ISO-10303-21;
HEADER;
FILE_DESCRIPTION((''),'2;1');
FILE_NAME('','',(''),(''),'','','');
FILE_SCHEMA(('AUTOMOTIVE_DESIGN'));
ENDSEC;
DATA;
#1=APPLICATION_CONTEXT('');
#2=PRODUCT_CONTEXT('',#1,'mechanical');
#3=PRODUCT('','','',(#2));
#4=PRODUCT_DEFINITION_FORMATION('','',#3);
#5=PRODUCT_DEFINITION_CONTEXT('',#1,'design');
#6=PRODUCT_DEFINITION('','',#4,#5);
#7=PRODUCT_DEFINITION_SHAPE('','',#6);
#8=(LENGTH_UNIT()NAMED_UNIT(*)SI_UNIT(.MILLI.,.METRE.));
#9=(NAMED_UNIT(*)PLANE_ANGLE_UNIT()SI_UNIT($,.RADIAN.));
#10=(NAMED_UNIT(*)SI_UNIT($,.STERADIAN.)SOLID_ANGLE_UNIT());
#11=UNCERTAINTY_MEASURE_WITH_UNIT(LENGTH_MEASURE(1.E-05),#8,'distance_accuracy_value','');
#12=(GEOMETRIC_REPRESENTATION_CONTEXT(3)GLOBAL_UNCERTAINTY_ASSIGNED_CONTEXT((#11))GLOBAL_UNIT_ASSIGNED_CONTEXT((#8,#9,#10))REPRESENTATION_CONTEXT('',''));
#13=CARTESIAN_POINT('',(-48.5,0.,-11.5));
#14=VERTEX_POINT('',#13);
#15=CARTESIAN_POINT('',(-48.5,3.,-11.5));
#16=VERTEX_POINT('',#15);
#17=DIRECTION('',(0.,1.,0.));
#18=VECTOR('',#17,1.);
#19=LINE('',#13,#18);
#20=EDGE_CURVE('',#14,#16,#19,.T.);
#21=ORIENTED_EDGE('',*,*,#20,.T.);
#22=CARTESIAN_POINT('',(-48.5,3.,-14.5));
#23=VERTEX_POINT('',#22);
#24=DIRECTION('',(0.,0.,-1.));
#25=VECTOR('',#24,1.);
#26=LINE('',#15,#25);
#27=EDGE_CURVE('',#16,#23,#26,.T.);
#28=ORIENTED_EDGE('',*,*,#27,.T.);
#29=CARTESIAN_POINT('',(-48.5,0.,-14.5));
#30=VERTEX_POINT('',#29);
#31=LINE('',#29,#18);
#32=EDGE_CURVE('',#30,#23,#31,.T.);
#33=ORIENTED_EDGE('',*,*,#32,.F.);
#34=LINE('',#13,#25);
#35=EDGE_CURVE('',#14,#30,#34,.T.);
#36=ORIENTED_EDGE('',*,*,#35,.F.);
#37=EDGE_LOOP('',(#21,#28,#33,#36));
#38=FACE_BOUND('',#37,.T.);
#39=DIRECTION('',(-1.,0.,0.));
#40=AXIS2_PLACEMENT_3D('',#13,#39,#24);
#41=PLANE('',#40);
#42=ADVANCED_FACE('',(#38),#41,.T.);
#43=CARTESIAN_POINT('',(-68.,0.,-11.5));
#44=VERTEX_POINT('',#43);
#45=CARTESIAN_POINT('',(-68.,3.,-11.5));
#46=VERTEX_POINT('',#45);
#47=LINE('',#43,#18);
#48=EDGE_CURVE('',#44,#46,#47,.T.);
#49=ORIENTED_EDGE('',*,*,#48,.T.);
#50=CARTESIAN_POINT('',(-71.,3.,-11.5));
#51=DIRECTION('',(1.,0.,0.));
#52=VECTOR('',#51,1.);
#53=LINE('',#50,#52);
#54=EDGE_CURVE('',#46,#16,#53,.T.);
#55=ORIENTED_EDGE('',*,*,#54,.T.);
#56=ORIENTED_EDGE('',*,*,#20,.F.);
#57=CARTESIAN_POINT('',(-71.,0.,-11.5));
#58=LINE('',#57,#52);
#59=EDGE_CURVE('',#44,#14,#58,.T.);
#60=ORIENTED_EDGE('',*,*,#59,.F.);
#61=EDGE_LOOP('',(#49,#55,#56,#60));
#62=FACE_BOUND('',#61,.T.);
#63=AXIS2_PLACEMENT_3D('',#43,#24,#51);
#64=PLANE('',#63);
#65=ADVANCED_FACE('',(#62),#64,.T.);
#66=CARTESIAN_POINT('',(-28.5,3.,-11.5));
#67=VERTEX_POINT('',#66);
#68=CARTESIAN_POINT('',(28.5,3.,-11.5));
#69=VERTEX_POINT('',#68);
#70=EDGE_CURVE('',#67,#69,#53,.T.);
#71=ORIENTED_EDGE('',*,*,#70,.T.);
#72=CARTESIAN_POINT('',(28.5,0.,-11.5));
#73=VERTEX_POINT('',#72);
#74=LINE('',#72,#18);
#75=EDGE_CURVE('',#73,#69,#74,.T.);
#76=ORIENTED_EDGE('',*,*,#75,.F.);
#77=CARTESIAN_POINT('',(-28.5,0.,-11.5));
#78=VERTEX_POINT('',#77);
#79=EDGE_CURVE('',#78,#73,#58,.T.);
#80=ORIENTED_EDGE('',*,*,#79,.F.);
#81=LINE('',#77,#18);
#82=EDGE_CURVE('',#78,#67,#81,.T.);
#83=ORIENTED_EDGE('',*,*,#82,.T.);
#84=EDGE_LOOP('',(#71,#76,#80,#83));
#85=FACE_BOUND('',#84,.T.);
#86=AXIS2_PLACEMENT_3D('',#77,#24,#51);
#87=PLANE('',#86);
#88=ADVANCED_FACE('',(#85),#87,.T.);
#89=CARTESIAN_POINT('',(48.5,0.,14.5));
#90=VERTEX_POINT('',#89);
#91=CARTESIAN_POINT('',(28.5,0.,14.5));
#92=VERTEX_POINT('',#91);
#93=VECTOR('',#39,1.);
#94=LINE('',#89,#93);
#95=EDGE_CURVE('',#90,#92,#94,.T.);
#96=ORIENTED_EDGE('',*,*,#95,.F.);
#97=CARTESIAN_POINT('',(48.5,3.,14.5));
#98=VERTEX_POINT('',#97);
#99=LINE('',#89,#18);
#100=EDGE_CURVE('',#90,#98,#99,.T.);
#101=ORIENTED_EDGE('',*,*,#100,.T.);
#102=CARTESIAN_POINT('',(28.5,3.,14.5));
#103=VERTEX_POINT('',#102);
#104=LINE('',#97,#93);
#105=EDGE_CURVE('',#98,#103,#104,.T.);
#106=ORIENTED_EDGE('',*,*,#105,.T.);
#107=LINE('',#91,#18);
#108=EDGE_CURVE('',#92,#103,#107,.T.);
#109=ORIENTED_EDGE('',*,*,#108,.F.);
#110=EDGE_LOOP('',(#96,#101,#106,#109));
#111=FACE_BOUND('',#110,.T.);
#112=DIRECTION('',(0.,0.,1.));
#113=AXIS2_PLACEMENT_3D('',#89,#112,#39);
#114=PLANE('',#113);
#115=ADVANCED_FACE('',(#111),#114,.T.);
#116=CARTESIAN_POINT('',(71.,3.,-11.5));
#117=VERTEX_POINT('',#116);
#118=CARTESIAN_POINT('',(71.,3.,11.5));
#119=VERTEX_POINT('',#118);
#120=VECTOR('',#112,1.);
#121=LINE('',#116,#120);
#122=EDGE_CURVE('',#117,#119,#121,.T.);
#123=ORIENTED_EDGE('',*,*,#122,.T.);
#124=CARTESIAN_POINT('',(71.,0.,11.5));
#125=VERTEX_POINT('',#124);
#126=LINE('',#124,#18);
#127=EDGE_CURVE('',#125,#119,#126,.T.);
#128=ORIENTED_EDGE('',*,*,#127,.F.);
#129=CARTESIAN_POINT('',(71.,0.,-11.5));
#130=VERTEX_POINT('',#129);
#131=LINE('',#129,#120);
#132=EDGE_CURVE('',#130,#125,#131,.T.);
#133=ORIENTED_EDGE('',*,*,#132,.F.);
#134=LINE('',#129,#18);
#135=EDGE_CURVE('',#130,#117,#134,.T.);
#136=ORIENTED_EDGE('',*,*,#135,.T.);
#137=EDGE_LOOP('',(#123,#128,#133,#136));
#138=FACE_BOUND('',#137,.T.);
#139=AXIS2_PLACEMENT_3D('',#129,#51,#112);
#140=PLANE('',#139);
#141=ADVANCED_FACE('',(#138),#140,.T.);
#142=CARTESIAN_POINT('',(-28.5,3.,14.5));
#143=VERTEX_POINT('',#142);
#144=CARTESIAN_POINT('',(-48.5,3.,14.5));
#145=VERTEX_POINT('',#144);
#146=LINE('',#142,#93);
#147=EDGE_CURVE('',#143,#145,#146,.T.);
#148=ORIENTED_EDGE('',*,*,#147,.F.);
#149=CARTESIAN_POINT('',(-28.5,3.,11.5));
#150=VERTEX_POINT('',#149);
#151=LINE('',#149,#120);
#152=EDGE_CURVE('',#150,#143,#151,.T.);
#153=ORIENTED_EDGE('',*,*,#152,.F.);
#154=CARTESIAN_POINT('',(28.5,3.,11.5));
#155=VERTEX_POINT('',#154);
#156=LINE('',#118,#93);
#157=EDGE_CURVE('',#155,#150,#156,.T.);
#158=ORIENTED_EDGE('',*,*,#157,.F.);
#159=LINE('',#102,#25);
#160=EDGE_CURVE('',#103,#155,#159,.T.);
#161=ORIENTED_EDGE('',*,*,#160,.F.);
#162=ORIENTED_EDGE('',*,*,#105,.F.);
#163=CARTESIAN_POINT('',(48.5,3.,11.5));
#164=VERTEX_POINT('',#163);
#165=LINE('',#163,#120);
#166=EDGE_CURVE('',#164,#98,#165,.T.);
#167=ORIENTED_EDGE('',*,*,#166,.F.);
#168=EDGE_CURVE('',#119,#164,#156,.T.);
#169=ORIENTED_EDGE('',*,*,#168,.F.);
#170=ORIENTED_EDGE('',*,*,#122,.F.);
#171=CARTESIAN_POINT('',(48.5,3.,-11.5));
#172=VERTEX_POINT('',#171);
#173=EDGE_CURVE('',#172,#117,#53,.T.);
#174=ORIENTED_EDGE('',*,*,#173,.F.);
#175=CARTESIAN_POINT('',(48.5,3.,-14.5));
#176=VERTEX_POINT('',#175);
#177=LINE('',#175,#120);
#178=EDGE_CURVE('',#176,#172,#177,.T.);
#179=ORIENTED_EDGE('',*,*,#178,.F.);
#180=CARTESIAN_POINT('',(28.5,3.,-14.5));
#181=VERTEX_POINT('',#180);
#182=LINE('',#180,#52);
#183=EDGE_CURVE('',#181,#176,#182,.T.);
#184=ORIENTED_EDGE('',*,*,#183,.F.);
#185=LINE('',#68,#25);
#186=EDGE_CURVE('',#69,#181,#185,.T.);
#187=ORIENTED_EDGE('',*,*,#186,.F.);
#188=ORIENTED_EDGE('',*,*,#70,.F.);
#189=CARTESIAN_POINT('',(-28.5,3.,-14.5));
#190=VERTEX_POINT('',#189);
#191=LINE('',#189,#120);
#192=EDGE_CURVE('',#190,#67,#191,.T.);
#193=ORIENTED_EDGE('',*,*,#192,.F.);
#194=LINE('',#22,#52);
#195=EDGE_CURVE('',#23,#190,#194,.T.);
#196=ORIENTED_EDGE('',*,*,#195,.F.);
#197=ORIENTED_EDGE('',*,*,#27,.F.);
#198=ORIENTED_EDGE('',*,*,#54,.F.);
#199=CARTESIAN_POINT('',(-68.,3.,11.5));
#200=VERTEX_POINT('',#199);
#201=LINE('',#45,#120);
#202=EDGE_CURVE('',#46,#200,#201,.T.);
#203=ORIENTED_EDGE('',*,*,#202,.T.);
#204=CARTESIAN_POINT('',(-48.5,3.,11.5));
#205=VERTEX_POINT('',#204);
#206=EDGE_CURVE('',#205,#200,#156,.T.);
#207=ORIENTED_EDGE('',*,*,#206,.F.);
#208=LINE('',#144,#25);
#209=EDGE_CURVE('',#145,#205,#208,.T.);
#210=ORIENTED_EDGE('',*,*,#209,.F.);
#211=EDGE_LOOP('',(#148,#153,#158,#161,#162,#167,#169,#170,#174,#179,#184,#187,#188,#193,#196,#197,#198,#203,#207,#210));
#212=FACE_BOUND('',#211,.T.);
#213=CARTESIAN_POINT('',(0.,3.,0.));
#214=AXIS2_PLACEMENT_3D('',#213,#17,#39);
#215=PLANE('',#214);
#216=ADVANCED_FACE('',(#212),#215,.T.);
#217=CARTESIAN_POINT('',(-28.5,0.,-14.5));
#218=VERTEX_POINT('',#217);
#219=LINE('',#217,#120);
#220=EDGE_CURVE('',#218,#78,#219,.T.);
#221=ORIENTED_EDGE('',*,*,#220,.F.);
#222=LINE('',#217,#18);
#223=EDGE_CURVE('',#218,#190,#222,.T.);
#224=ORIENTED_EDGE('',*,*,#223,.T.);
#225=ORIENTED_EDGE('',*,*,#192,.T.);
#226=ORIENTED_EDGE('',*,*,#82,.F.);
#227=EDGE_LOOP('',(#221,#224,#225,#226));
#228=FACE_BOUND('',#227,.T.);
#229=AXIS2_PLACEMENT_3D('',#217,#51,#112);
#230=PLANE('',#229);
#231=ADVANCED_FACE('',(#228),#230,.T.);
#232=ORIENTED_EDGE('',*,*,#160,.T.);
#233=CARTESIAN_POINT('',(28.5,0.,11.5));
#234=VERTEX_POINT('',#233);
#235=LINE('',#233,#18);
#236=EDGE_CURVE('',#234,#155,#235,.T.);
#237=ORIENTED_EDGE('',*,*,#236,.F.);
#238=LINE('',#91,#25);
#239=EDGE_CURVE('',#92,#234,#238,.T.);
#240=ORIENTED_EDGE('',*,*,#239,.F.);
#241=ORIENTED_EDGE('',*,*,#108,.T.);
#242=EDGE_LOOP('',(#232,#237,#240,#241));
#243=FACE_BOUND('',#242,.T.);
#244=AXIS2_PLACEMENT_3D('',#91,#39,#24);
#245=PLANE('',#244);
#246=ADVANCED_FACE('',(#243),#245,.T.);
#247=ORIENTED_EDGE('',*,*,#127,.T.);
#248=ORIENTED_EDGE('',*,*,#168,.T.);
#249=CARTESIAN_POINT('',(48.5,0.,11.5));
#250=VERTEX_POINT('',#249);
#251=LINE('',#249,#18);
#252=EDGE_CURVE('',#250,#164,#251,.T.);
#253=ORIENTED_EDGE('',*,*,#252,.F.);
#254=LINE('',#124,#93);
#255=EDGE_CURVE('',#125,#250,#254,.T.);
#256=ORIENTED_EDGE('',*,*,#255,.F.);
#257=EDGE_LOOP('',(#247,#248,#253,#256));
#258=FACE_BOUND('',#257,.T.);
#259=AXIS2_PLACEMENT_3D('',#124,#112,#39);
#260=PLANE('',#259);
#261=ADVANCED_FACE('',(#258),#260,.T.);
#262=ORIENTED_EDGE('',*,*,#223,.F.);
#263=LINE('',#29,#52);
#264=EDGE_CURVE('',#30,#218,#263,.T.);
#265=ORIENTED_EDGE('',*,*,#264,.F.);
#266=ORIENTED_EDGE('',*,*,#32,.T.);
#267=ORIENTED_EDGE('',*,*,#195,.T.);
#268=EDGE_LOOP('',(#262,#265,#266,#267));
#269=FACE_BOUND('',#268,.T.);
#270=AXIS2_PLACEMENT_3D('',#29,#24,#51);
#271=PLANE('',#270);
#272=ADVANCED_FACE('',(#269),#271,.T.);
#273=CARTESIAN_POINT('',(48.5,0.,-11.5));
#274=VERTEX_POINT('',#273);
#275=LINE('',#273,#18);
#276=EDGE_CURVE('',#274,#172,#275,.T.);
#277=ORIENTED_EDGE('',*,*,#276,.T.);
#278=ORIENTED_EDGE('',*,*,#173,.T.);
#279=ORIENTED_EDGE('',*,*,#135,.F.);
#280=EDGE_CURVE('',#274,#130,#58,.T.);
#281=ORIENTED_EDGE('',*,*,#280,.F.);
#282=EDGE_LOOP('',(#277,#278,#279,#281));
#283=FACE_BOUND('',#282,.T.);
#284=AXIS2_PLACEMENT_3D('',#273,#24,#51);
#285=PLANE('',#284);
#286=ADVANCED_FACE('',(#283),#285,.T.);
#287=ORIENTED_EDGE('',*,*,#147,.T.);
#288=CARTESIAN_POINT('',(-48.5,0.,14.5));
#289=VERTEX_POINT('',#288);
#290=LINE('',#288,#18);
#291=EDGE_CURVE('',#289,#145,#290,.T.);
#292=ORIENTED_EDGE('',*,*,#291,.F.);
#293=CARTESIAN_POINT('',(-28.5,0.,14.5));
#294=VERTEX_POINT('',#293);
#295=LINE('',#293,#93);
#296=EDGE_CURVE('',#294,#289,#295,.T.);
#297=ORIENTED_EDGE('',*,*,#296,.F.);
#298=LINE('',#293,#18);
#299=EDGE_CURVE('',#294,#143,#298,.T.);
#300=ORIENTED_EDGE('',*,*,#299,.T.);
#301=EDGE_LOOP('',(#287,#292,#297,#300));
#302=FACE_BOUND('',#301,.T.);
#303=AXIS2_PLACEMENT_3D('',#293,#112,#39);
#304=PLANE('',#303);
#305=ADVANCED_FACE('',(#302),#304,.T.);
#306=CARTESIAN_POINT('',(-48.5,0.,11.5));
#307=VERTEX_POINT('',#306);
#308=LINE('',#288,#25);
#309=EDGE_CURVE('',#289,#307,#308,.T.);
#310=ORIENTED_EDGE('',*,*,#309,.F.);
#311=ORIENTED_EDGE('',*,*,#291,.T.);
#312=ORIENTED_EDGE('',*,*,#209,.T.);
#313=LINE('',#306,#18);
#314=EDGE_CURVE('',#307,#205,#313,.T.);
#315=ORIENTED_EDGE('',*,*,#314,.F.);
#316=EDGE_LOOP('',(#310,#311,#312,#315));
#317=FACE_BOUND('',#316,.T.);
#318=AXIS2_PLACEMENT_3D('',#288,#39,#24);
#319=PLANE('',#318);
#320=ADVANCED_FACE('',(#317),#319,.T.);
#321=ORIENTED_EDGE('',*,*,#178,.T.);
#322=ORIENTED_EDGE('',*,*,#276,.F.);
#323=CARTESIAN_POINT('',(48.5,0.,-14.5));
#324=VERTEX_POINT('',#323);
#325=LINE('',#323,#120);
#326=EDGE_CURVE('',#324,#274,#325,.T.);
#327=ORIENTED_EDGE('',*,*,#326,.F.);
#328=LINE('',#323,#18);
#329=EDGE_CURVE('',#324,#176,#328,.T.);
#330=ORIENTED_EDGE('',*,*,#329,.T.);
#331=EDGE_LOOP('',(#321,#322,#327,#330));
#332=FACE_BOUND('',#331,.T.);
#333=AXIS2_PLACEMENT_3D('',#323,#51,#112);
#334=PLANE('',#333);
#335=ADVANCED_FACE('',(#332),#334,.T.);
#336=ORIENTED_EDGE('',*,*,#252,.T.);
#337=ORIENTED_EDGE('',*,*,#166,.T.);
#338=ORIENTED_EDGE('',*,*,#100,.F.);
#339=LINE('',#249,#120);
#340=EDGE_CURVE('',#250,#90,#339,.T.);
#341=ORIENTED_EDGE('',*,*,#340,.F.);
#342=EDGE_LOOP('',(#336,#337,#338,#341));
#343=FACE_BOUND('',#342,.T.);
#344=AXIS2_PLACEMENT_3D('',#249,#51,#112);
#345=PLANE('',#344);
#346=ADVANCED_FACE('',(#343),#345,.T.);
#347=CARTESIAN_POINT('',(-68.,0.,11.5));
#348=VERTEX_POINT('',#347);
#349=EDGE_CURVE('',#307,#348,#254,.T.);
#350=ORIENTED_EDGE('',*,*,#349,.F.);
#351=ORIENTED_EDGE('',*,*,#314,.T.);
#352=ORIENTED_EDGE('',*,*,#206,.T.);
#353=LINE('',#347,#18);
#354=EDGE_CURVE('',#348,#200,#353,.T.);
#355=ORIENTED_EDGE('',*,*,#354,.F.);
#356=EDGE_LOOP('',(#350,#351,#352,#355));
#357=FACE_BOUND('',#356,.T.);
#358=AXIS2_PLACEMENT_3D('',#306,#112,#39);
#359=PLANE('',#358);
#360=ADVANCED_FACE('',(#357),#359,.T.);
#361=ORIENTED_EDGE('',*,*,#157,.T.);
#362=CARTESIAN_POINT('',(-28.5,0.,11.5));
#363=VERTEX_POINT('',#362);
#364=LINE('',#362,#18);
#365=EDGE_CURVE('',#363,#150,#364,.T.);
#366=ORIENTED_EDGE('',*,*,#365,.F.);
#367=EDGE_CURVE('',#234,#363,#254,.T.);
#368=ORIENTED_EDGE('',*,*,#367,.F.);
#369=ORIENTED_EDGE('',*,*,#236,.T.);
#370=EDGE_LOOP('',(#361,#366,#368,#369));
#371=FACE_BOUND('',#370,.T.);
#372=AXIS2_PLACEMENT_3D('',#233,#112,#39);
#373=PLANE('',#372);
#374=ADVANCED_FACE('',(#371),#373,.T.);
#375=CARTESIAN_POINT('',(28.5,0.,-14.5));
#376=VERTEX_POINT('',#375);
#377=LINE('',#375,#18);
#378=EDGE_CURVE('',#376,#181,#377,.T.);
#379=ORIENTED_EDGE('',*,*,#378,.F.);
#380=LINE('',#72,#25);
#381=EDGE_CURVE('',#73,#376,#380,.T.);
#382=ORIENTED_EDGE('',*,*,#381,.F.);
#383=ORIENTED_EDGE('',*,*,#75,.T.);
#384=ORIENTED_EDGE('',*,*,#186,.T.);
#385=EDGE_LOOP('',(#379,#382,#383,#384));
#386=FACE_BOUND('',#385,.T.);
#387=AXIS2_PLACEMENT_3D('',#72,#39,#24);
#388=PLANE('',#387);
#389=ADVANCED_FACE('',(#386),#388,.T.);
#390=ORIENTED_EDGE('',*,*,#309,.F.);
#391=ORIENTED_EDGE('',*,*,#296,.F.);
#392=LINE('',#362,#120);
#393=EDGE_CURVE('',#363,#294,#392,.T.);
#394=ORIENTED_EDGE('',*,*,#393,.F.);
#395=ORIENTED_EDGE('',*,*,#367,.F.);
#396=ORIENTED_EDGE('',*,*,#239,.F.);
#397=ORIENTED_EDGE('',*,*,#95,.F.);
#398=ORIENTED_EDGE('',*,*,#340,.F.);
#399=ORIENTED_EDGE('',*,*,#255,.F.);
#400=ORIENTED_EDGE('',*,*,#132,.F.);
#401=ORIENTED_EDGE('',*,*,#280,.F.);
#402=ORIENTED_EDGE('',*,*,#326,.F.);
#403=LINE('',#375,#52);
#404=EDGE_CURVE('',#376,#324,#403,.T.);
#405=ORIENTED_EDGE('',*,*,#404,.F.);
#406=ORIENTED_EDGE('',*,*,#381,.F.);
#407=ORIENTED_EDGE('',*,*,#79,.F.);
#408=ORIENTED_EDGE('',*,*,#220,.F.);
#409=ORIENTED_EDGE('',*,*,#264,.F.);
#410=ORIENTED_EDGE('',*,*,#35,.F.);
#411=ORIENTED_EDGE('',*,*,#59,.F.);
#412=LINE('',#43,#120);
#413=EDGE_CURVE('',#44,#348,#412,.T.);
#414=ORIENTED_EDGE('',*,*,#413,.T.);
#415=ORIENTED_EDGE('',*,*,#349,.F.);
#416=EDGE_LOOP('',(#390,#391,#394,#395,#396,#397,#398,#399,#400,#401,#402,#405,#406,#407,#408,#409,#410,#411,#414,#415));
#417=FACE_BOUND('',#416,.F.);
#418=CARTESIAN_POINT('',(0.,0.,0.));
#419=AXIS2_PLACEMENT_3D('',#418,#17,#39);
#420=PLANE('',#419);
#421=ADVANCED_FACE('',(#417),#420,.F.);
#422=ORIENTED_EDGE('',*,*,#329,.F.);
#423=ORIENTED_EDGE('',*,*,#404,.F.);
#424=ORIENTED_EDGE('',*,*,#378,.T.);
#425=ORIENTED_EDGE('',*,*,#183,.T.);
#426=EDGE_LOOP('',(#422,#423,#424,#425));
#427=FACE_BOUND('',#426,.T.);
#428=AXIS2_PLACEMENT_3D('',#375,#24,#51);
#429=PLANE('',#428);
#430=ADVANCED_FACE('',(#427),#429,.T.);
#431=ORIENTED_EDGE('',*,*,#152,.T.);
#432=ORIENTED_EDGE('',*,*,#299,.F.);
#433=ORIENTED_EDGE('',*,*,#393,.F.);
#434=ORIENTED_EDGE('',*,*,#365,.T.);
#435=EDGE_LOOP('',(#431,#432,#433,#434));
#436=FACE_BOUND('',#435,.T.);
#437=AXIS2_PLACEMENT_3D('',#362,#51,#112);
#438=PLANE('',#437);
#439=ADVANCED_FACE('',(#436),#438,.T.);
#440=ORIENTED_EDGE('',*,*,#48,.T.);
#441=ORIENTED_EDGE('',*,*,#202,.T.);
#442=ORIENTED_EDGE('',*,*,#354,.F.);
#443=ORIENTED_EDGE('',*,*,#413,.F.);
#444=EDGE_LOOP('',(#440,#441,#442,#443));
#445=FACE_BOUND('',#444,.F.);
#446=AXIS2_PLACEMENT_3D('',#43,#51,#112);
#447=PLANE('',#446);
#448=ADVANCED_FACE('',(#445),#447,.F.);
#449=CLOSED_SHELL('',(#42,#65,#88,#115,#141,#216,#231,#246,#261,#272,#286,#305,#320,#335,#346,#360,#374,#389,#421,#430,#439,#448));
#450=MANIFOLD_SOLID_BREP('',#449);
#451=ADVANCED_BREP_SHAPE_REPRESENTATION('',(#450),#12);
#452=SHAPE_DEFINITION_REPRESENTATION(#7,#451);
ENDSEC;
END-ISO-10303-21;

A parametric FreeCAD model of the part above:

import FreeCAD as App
import Part
import Sketcher
from FreeCAD import Vector
Q = App.Units.Quantity

doc = App.newDocument("Part")
body = doc.addObject("PartDesign::Body", "Body")

sketch1 = doc.addObject("Sketcher::SketchObject", "Sketch")
body.addObject(sketch1)
sketch1.AttachmentSupport = (doc.XZ_Plane, [""])
sketch1.MapMode = "FlatFace"
sketch1.addGeometry([
    Part.LineSegment(Vector(-48.5, -11.5, 0), Vector(-68, -11.5, 0)),
    Part.LineSegment(Vector(-68, -11.5, 0), Vector(-68, 11.5, 0)),
    Part.LineSegment(Vector(-68, 11.5, 0), Vector(-48.5, 11.5, 0)),
    Part.LineSegment(Vector(-48.5, 11.5, 0), Vector(-48.5, 14.5, 0)),
    Part.LineSegment(Vector(-48.5, 14.5, 0), Vector(-28.5, 14.5, 0)),
    Part.LineSegment(Vector(-28.5, 14.5, 0), Vector(-28.5, 11.5, 0)),
    Part.LineSegment(Vector(-28.5, 11.5, 0), Vector(28.5, 11.5, 0)),
    Part.LineSegment(Vector(28.5, 11.5, 0), Vector(28.5, 14.5, 0)),
    Part.LineSegment(Vector(28.5, 14.5, 0), Vector(48.5, 14.5, 0)),
    Part.LineSegment(Vector(48.5, 14.5, 0), Vector(48.5, 11.5, 0)),
    Part.LineSegment(Vector(48.5, 11.5, 0), Vector(71, 11.5, 0)),
    Part.LineSegment(Vector(71, 11.5, 0), Vector(71, -11.5, 0)),
    Part.LineSegment(Vector(71, -11.5, 0), Vector(48.5, -11.5, 0)),
    Part.LineSegment(Vector(48.5, -11.5, 0), Vector(48.5, -14.5, 0)),
    Part.LineSegment(Vector(48.5, -14.5, 0), Vector(28.5, -14.5, 0)),
    Part.LineSegment(Vector(28.5, -14.5, 0), Vector(28.5, -11.5, 0)),
    Part.LineSegment(Vector(28.5, -11.5, 0), Vector(-28.5, -11.5, 0)),
    Part.LineSegment(Vector(-28.5, -11.5, 0), Vector(-28.5, -14.5, 0)),
    Part.LineSegment(Vector(-28.5, -14.5, 0), Vector(-48.5, -14.5, 0)),
    Part.LineSegment(Vector(-48.5, -14.5, 0), Vector(-48.5, -11.5, 0)),
], False)
sketch1.addConstraint([
    Sketcher.Constraint("Coincident", 0, 2, 1, 1),
    Sketcher.Constraint("Coincident", 1, 2, 2, 1),
    Sketcher.Constraint("Coincident", 2, 2, 3, 1),
    Sketcher.Constraint("Coincident", 3, 2, 4, 1),
    Sketcher.Constraint("Coincident", 4, 2, 5, 1),
    Sketcher.Constraint("Coincident", 5, 2, 6, 1),
    Sketcher.Constraint("Coincident", 6, 2, 7, 1),
    Sketcher.Constraint("Coincident", 7, 2, 8, 1),
    Sketcher.Constraint("Coincident", 8, 2, 9, 1),
    Sketcher.Constraint("Coincident", 9, 2, 10, 1),
    Sketcher.Constraint("Coincident", 10, 2, 11, 1),
    Sketcher.Constraint("Coincident", 11, 2, 12, 1),
    Sketcher.Constraint("Coincident", 12, 2, 13, 1),
    Sketcher.Constraint("Coincident", 13, 2, 14, 1),
    Sketcher.Constraint("Coincident", 14, 2, 15, 1),
    Sketcher.Constraint("Coincident", 15, 2, 16, 1),
    Sketcher.Constraint("Coincident", 16, 2, 17, 1),
    Sketcher.Constraint("Coincident", 17, 2, 18, 1),
    Sketcher.Constraint("Coincident", 18, 2, 19, 1),
    Sketcher.Constraint("Coincident", 19, 2, 0, 1),
    Sketcher.Constraint("Horizontal", 0),
    Sketcher.Constraint("Vertical", 1),
    Sketcher.Constraint("Horizontal", 2),
    Sketcher.Constraint("Vertical", 3),
    Sketcher.Constraint("Horizontal", 4),
    Sketcher.Constraint("Vertical", 5),
    Sketcher.Constraint("Horizontal", 6),
    Sketcher.Constraint("Vertical", 7),
    Sketcher.Constraint("Horizontal", 8),
    Sketcher.Constraint("Vertical", 9),
    Sketcher.Constraint("Horizontal", 10),
    Sketcher.Constraint("Vertical", 11),
    Sketcher.Constraint("Horizontal", 12),
    Sketcher.Constraint("Vertical", 13),
    Sketcher.Constraint("Horizontal", 14),
    Sketcher.Constraint("Vertical", 15),
    Sketcher.Constraint("Horizontal", 16),
    Sketcher.Constraint("Vertical", 17),
    Sketcher.Constraint("Horizontal", 18),
    Sketcher.Constraint("Vertical", 19),
    Sketcher.Constraint("Symmetric", 2, 2, 12, 2, -1, 1),
    Sketcher.Constraint("Symmetric", 4, 2, 14, 2, -1, 1),
    Sketcher.Constraint("Symmetric", 6, 2, 16, 2, -1, 1),
    Sketcher.Constraint("Symmetric", 8, 2, 18, 2, -1, 1),
    Sketcher.Constraint("Symmetric", 4, 2, 7, 2, -2),
    Sketcher.Constraint("Symmetric", 2, 2, 9, 2, -2),
    Sketcher.Constraint("Horizontal", 2, 2, 5, 2),
    Sketcher.Constraint("Horizontal", 0, 2, 11, 2),
    Sketcher.Constraint("DistanceX", 4, 1, 4, 2, Q("20 mm")),
    Sketcher.Constraint("DistanceY", 1, 1, 1, 2, Q("23 mm")),
    Sketcher.Constraint("DistanceY", 3, 1, 3, 2, Q("3 mm")),
    Sketcher.Constraint("DistanceX", 2, 2, 6, 2, Q("77 mm")),
    Sketcher.Constraint("DistanceX", 0, 2, 0, 1, Q("19.5 mm")),
    Sketcher.Constraint("DistanceX", 10, 1, 10, 2, Q("22.5 mm")),
])
pad1 = doc.addObject("PartDesign::Pad", "Pad")
body.addObject(pad1)
pad1.Profile = sketch1
pad1.Length = 3
pad1.Reversed = True

doc.recompute()
